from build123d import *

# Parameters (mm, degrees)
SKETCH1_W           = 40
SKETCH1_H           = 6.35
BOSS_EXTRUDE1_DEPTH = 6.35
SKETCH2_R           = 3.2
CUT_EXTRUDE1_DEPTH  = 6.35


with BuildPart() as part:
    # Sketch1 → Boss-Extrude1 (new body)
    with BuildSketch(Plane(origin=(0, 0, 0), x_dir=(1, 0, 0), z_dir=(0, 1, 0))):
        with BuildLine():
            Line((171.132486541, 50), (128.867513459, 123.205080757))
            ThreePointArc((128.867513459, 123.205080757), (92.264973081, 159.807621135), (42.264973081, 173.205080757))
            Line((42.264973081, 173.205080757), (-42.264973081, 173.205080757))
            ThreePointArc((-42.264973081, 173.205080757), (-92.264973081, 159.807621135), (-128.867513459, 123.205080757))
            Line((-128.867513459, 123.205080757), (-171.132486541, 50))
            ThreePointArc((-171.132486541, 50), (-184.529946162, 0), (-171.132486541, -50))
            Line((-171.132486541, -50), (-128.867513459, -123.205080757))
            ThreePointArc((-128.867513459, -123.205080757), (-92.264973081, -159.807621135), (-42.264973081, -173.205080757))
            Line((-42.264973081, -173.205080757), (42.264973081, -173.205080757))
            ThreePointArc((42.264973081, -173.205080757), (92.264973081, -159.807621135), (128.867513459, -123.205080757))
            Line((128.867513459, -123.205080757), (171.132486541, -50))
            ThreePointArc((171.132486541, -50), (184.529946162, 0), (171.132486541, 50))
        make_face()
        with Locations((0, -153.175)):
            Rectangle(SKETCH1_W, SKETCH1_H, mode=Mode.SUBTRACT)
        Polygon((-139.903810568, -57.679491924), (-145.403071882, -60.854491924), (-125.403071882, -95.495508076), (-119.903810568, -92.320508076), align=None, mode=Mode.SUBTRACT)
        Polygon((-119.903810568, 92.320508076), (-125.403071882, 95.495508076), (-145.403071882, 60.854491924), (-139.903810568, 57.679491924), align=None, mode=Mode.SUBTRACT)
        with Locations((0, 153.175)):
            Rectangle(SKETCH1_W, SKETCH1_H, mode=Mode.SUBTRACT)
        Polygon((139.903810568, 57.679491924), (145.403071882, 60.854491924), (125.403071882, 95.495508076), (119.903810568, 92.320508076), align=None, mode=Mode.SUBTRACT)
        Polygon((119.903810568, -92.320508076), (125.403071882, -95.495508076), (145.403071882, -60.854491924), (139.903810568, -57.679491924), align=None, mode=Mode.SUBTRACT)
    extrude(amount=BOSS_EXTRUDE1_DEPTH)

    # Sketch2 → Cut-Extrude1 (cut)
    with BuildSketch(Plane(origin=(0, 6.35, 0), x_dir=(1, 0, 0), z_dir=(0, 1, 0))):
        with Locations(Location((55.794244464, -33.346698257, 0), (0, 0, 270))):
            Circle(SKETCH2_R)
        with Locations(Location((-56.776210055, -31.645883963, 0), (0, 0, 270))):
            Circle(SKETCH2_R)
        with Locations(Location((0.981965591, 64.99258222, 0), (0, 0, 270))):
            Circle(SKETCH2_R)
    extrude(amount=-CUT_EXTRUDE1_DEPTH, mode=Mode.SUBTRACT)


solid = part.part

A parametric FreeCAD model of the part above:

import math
import FreeCAD as App
import Part
import Sketcher
Q = App.Units.Quantity

doc = App.newDocument("Part")
body = doc.addObject("PartDesign::Body", "Body")

sketch1 = doc.addObject("Sketcher::SketchObject", "Sketch")
body.addObject(sketch1)
sketch1.AttachmentSupport = (doc.XZ_Plane, [""])
sketch1.MapMode = "FlatFace"
sketch1.addGeometry([
    Part.LineSegment(App.Vector(171, -50, 0), App.Vector(129, -123, 0)),
    Part.ArcOfCircle(Part.Circle(App.Vector(42, -73, 0), App.Vector(0, 0, 1), 100), math.radians(-90), math.radians(-30)),
    Part.LineSegment(App.Vector(42, -173, 0), App.Vector(-42, -173, 0)),
    Part.ArcOfCircle(Part.Circle(App.Vector(-42, -73, 0), App.Vector(0, 0, 1), 100), math.radians(-150), math.radians(-90)),
    Part.LineSegment(App.Vector(-129, -123, 0), App.Vector(-171, -50, 0)),
    Part.ArcOfCircle(Part.Circle(App.Vector(-85, 0, 0), App.Vector(0, 0, 1), 100), math.radians(150), math.radians(210)),
    Part.LineSegment(App.Vector(-171, 50, 0), App.Vector(-129, 123, 0)),
    Part.ArcOfCircle(Part.Circle(App.Vector(-42, 73, 0), App.Vector(0, 0, 1), 100), math.radians(90), math.radians(150)),
    Part.LineSegment(App.Vector(-42, 173, 0), App.Vector(42, 173, 0)),
    Part.ArcOfCircle(Part.Circle(App.Vector(42, 73, 0), App.Vector(0, 0, 1), 100), math.radians(30), math.radians(90)),
    Part.LineSegment(App.Vector(129, 123, 0), App.Vector(171, 50, 0)),
    Part.ArcOfCircle(Part.Circle(App.Vector(85, 0, 0), App.Vector(0, 0, 1), 100), math.radians(-30), math.radians(30)),
    Part.LineSegment(App.Vector(-145, 61, 0), App.Vector(-140, 58, 0)),
    Part.LineSegment(App.Vector(-140, 58, 0), App.Vector(-120, 92, 0)),
    Part.LineSegment(App.Vector(-120, 92, 0), App.Vector(-125, 95, 0)),
    Part.LineSegment(App.Vector(-125, 95, 0), App.Vector(-145, 61, 0)),
    Part.LineSegment(App.Vector(20, 156, 0), App.Vector(-20, 156, 0)),
    Part.LineSegment(App.Vector(-20, 156, 0), App.Vector(-20, 150, 0)),
    Part.LineSegment(App.Vector(-20, 150, 0), App.Vector(20, 150, 0)),
    Part.LineSegment(App.Vector(20, 150, 0), App.Vector(20, 156, 0)),
    Part.LineSegment(App.Vector(125, 95, 0), App.Vector(120, 92, 0)),
    Part.LineSegment(App.Vector(120, 92, 0), App.Vector(140, 58, 0)),
    Part.LineSegment(App.Vector(140, 58, 0), App.Vector(145, 61, 0)),
    Part.LineSegment(App.Vector(145, 61, 0), App.Vector(125, 95, 0)),
    Part.LineSegment(App.Vector(-125, -95, 0), App.Vector(-120, -92, 0)),
    Part.LineSegment(App.Vector(-120, -92, 0), App.Vector(-140, -58, 0)),
    Part.LineSegment(App.Vector(-140, -58, 0), App.Vector(-145, -61, 0)),
    Part.LineSegment(App.Vector(-145, -61, 0), App.Vector(-125, -95, 0)),
    Part.LineSegment(App.Vector(145, -61, 0), App.Vector(140, -58, 0)),
    Part.LineSegment(App.Vector(140, -58, 0), App.Vector(120, -92, 0)),
    Part.LineSegment(App.Vector(120, -92, 0), App.Vector(125, -95, 0)),
    Part.LineSegment(App.Vector(125, -95, 0), App.Vector(145, -61, 0)),
    Part.LineSegment(App.Vector(20, -150, 0), App.Vector(-20, -150, 0)),
    Part.LineSegment(App.Vector(-20, -150, 0), App.Vector(-20, -156, 0)),
    Part.LineSegment(App.Vector(-20, -156, 0), App.Vector(20, -156, 0)),
    Part.LineSegment(App.Vector(20, -156, 0), App.Vector(20, -150, 0)),
], False)
sketch1.addConstraint([
    Sketcher.Constraint("Tangent", 0, 2, 1, 2),
    Sketcher.Constraint("Tangent", 1, 1, 2, 1),
    Sketcher.Constraint("Tangent", 2, 2, 3, 2),
    Sketcher.Constraint("Tangent", 3, 1, 4, 1),
    Sketcher.Constraint("Tangent", 4, 2, 5, 2),
    Sketcher.Constraint("Tangent", 5, 1, 6, 1),
    Sketcher.Constraint("Tangent", 6, 2, 7, 2),
    Sketcher.Constraint("Tangent", 7, 1, 8, 1),
    Sketcher.Constraint("Tangent", 8, 2, 9, 2),
    Sketcher.Constraint("Tangent", 9, 1, 10, 1),
    Sketcher.Constraint("Tangent", 10, 2, 11, 2),
    Sketcher.Constraint("Tangent", 11, 1, 0, 1),
    Sketcher.Constraint("Coincident", 12, 2, 13, 1),
    Sketcher.Constraint("Coincident", 13, 2, 14, 1),
    Sketcher.Constraint("Coincident", 14, 2, 15, 1),
    Sketcher.Constraint("Coincident", 15, 2, 12, 1),
    Sketcher.Constraint("Coincident", 16, 2, 17, 1),
    Sketcher.Constraint("Coincident", 17, 2, 18, 1),
    Sketcher.Constraint("Coincident", 18, 2, 19, 1),
    Sketcher.Constraint("Coincident", 19, 2, 16, 1),
    Sketcher.Constraint("Coincident", 20, 2, 21, 1),
    Sketcher.Constraint("Coincident", 21, 2, 22, 1),
    Sketcher.Constraint("Coincident", 22, 2, 23, 1),
    Sketcher.Constraint("Coincident", 23, 2, 20, 1),
    Sketcher.Constraint("Coincident", 24, 2, 25, 1),
    Sketcher.Constraint("Coincident", 25, 2, 26, 1),
    Sketcher.Constraint("Coincident", 26, 2, 27, 1),
    Sketcher.Constraint("Coincident", 27, 2, 24, 1),
    Sketcher.Constraint("Coincident", 28, 2, 29, 1),
    Sketcher.Constraint("Coincident", 29, 2, 30, 1),
    Sketcher.Constraint("Coincident", 30, 2, 31, 1),
    Sketcher.Constraint("Coincident", 31, 2, 28, 1),
    Sketcher.Constraint("Coincident", 32, 2, 33, 1),
    Sketcher.Constraint("Coincident", 33, 2, 34, 1),
    Sketcher.Constraint("Coincident", 34, 2, 35, 1),
    Sketcher.Constraint("Coincident", 35, 2, 32, 1),
    Sketcher.Constraint("Horizontal", 2),
    Sketcher.Constraint("Horizontal", 8),
    Sketcher.Constraint("Horizontal", 16),
    Sketcher.Constraint("Vertical", 17),
    Sketcher.Constraint("Horizontal", 18),
    Sketcher.Constraint("Vertical", 19),
    Sketcher.Constraint("Horizontal", 32),
    Sketcher.Constraint("Vertical", 33),
    Sketcher.Constraint("Horizontal", 34),
    Sketcher.Constraint("Vertical", 35),
    Sketcher.Constraint("Equal", 1, 3),
    Sketcher.Constraint("Equal", 3, 5),
    Sketcher.Constraint("Equal", 5, 7),
    Sketcher.Constraint("Equal", 7, 9),
    Sketcher.Constraint("Equal", 9, 11),
    Sketcher.Constraint("Symmetric", 1, 3, 7, 3, -1, 1),
    Sketcher.Constraint("Symmetric", 5, 3, 11, 3, -1, 1),
    Sketcher.Constraint("Symmetric", 20, 2, 24, 2, -1, 1),
    Sketcher.Constraint("Symmetric", 21, 2, 25, 2, -1, 1),
    Sketcher.Constraint("Symmetric", 22, 2, 26, 2, -1, 1),
    Sketcher.Constraint("Symmetric", 23, 2, 27, 2, -1, 1),
    Sketcher.Constraint("Symmetric", 12, 2, 28, 2, -1, 1),
    Sketcher.Constraint("Symmetric", 13, 2, 29, 2, -1, 1),
    Sketcher.Constraint("Symmetric", 14, 2, 30, 2, -1, 1),
    Sketcher.Constraint("Symmetric", 15, 2, 31, 2, -1, 1),
    Sketcher.Constraint("Symmetric", 18, 2, 32, 2, -1, 1),
    Sketcher.Constraint("Symmetric", 16, 2, 34, 2, -1, 1),
    Sketcher.Constraint("Symmetric", 0, 2, 3, 1, -2),
    Sketcher.Constraint("Symmetric", 13, 2, 20, 2, -2),
    Sketcher.Constraint("Symmetric", 12, 2, 21, 2, -2),
    Sketcher.Constraint("Symmetric", 15, 2, 22, 2, -2),
    Sketcher.Constraint("Symmetric", 14, 2, 23, 2, -2),
    Sketcher.Constraint("Parallel", 4, 10),
    Sketcher.Constraint("Perpendicular", 6, 12),
    Sketcher.Constraint("Perpendicular", 12, 13),
    Sketcher.Constraint("Perpendicular", 13, 14),
    Sketcher.Constraint("Perpendicular", 14, 15),
    Sketcher.Constraint("Vertical", 17, 2, 32, 2),
    Sketcher.Constraint("Radius", 1, 100.0),
    Sketcher.Constraint("DistanceX", 16, 2, 16, 1, 40.0),
    Sketcher.Constraint("Angle", 0, Q("-120 deg")),
    Sketcher.Constraint("Distance", 13, 40.0),
    Sketcher.Constraint("DistanceY", -1, 1, 17, 2, 150.0),
    Sketcher.Constraint("DistanceY", 17, 2, 17, 1, 6.35),
    Sketcher.Constraint("Distance", 12, 6.35),
    Sketcher.Constraint("DistanceX", 14, 2, 7, 3, 83.138099),
    Sketcher.Constraint("DistanceX", 2, 2, 2, 1, 84.529946),
    Sketcher.Constraint("DistanceY", 1, 3, -1, 1, 73.205081),
    Sketcher.Constraint("DistanceY", -1, 1, 12, 2, 57.679492),
])
pad1 = doc.addObject("PartDesign::Pad", "Pad")
body.addObject(pad1)
pad1.Profile = sketch1
pad1.Length = 6.35
pad1.Reversed = True

sketch2 = doc.addObject("Sketcher::SketchObject", "Sketch001")
body.addObject(sketch2)
sketch2.AttachmentSupport = (doc.XZ_Plane, [""])
sketch2.MapMode = "FlatFace"
sketch2.AttachmentOffset = App.Placement(App.Vector(0, 0, -6.35), App.Rotation())
sketch2.addGeometry([
    Part.Circle(App.Vector(55.8, 33.3, 0), App.Vector(0, 0, 1), 3.2),
    Part.Circle(App.Vector(-56.8, 31.6, 0), App.Vector(0, 0, 1), 3.2),
    Part.Circle(App.Vector(1, -65, 0), App.Vector(0, 0, 1), 3.2),
], False)
sketch2.addConstraint([
    Sketcher.Constraint("Equal", 0, 1),
    Sketcher.Constraint("Equal", 1, 2),
    Sketcher.Constraint("Diameter", 0, 6.4),
    Sketcher.Constraint("DistanceY", -1, 1, 0, 3, 33.346698),
    Sketcher.Constraint("DistanceX", 1, 3, -1, 1, 56.77621),
    Sketcher.Constraint("DistanceX", 2, 3, 0, 3, 54.812279),
    Sketcher.Constraint("DistanceY", 2, 3, 0, 3, 98.33928),
    Sketcher.Constraint("DistanceX", -1, 1, 0, 3, 55.794244),
    Sketcher.Constraint("DistanceY", -1, 1, 1, 3, 31.645884),
])
pocket1 = doc.addObject("PartDesign::Pocket", "Pocket")
body.addObject(pocket1)
pocket1.Profile = sketch2
pocket1.Length = 6.35
pocket1.Reversed = True

doc.recompute()
